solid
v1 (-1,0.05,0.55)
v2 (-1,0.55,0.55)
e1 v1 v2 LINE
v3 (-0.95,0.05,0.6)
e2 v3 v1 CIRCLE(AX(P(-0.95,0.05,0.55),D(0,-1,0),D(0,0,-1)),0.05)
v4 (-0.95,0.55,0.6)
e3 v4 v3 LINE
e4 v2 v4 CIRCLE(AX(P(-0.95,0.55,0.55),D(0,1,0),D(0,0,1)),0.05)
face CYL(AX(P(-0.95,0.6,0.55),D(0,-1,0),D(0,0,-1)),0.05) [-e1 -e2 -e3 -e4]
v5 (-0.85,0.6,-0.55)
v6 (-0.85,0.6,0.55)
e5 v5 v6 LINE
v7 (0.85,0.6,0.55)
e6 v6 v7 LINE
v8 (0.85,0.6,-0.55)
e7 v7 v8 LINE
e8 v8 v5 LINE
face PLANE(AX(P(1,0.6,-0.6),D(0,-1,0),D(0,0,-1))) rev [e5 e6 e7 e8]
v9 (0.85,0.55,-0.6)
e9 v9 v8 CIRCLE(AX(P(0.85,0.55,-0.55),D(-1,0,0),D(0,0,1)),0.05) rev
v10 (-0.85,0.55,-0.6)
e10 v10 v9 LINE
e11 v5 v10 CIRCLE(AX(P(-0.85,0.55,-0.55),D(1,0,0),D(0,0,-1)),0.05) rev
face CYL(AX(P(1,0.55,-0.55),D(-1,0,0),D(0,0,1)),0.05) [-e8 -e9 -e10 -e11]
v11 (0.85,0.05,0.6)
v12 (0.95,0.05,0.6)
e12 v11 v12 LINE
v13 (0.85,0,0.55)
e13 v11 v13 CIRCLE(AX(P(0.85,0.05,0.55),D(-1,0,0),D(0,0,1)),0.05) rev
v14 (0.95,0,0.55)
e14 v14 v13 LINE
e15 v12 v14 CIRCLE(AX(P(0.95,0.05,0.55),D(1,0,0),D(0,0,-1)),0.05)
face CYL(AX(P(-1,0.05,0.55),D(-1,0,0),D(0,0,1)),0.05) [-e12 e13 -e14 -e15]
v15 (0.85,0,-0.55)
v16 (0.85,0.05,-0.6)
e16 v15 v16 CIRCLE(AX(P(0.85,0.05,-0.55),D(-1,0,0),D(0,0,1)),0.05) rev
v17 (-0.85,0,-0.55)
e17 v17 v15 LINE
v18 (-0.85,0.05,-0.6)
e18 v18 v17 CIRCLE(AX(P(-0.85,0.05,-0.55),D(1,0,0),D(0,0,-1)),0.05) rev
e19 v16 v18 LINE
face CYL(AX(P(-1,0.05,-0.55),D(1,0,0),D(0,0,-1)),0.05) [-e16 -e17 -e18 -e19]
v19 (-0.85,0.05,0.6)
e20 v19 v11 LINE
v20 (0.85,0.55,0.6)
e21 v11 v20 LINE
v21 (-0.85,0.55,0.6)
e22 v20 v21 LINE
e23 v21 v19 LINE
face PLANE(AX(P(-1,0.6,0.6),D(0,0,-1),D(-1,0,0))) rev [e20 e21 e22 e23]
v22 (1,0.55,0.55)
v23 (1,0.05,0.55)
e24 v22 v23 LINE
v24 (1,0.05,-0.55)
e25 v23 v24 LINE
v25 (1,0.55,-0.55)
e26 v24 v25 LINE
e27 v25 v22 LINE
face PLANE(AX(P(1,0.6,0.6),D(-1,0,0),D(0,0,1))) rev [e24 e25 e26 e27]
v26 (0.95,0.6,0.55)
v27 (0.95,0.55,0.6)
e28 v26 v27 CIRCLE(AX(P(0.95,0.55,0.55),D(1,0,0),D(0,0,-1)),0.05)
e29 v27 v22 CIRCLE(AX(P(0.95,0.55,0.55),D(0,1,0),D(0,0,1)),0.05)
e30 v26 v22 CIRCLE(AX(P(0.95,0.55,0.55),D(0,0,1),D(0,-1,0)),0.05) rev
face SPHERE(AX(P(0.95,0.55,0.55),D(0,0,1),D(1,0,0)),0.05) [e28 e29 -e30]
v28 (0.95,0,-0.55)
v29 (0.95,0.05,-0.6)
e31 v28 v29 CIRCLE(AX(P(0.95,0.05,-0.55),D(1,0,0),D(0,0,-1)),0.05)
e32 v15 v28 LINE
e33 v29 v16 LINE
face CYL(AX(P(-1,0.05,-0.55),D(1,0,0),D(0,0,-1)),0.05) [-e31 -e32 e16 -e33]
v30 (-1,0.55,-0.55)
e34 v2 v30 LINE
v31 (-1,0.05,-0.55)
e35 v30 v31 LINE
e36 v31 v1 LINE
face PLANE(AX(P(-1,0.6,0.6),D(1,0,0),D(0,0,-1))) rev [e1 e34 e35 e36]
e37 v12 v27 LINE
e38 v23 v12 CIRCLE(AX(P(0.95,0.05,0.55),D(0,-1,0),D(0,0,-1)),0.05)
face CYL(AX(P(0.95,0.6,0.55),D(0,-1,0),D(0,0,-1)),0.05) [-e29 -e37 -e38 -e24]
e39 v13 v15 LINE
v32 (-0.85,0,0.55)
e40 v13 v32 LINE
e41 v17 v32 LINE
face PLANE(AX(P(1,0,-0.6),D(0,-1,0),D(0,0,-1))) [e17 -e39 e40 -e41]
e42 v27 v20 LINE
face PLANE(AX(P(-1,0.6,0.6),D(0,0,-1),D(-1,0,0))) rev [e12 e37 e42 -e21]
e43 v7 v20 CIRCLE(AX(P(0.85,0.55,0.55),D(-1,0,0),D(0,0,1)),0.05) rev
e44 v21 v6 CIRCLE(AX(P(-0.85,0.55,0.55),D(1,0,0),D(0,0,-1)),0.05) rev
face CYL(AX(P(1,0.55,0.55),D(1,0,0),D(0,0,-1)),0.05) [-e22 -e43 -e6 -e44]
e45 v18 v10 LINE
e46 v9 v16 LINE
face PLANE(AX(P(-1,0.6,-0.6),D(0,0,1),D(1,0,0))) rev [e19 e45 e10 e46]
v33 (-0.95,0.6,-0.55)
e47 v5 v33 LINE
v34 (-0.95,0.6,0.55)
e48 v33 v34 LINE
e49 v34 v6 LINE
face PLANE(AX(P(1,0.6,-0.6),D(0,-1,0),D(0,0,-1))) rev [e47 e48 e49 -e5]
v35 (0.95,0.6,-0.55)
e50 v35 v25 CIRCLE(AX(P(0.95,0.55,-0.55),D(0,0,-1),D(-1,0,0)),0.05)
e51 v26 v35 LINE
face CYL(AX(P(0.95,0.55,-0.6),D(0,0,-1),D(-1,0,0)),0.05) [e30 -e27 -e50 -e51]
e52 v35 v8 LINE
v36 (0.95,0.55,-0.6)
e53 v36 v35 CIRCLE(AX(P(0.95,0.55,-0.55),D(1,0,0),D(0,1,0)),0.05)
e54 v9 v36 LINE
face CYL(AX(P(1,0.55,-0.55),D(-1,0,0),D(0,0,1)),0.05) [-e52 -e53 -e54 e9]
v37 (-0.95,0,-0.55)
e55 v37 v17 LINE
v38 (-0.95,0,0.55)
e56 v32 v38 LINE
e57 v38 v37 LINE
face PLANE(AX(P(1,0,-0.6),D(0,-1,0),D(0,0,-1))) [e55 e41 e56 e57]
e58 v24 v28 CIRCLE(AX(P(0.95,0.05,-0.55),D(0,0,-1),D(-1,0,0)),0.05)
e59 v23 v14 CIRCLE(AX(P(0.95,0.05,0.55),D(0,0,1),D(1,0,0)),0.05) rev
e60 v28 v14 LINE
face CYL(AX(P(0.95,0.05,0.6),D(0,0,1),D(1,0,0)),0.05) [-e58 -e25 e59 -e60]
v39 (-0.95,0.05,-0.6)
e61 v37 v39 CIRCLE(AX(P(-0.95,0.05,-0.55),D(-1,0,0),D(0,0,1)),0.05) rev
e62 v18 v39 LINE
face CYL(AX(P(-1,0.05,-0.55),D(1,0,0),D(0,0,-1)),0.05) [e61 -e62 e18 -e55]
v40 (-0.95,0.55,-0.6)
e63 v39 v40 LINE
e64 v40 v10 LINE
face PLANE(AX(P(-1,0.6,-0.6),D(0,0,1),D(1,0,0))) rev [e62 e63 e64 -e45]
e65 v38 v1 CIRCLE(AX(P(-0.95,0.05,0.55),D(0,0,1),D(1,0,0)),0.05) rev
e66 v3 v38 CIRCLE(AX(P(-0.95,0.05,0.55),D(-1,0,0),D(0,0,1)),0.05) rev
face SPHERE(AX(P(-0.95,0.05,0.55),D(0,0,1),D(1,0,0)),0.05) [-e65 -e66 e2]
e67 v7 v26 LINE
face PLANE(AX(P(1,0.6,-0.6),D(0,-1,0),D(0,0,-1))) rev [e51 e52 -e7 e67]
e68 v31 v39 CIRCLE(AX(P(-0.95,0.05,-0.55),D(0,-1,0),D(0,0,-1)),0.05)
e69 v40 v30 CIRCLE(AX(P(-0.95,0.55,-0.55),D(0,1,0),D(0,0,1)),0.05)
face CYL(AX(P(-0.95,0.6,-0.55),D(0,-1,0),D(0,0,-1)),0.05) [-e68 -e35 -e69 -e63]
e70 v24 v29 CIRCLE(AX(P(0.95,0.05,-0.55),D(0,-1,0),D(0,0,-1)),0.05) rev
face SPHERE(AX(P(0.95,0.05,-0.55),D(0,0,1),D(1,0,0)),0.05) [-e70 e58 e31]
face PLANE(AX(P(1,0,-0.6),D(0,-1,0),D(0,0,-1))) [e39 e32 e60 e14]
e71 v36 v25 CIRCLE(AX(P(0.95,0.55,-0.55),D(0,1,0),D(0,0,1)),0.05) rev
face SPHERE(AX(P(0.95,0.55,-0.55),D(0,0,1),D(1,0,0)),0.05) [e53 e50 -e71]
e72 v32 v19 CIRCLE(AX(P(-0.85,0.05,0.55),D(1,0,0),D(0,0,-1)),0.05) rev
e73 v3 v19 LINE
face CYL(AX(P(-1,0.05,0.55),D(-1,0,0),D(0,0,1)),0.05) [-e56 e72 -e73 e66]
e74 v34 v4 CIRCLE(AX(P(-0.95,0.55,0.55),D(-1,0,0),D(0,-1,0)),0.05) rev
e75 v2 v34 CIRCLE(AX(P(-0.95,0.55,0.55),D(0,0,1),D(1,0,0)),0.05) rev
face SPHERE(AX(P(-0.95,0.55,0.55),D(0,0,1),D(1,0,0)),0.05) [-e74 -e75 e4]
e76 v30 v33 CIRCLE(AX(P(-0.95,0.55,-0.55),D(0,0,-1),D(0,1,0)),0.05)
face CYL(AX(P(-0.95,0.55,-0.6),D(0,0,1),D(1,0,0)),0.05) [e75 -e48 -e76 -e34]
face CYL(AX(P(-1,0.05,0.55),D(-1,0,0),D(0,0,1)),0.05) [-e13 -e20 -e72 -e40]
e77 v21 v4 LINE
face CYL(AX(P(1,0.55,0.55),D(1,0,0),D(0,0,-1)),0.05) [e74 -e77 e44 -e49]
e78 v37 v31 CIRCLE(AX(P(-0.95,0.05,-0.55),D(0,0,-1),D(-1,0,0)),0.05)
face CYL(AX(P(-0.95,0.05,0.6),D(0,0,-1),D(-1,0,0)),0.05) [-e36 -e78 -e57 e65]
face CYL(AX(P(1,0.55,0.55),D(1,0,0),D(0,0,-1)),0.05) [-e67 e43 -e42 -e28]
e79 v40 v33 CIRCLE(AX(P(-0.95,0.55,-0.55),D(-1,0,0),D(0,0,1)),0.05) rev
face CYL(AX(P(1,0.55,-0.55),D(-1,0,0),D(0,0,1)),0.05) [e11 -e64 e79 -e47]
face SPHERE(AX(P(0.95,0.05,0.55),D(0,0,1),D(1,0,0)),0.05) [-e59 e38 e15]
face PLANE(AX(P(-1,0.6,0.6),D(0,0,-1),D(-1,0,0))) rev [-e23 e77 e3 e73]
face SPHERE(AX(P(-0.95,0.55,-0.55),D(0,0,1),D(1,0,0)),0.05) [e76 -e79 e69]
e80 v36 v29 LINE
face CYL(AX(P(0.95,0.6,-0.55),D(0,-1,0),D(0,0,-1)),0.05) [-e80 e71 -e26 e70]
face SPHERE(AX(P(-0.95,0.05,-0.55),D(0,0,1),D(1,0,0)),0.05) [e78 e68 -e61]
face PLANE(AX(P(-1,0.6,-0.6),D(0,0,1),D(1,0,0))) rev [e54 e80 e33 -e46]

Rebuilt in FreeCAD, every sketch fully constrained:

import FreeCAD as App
import Part
import Sketcher

V = App.Vector

doc = App.newDocument("Part")
params = doc.addObject("Spreadsheet::Sheet", "Params")
for row, (alias, value) in enumerate([
    ("sketch1_width", "2 mm"),
    ("sketch1_height", "1.2 mm"),
    ("pad1_length", "0.6 mm"),
    ("fillet_radius", "0.05 mm"),
], start=1):
    params.set(f"A{row}", alias)
    params.set(f"B{row}", "=" + value)
    params.setAlias(f"B{row}", alias)

body = doc.addObject("PartDesign::Body", "Body")

sketch1 = body.newObject("Sketcher::SketchObject", "Sketch")
sketch1.AttachmentSupport = (doc.getObject("XZ_Plane"), [""])
sketch1.MapMode = "FlatFace"
sketch1.addGeometry(Part.LineSegment(V(-1, -0.6, 0), V(-1, 0.6, 0)), False)
sketch1.addGeometry(Part.LineSegment(V(-1, 0.6, 0), V(1, 0.6, 0)), False)
sketch1.addGeometry(Part.LineSegment(V(1, 0.6, 0), V(1, -0.6, 0)), False)
sketch1.addGeometry(Part.LineSegment(V(1, -0.6, 0), V(-1, -0.6, 0)), False)
sketch1.addConstraint(Sketcher.Constraint("Coincident", 0, 2, 1, 1))
sketch1.addConstraint(Sketcher.Constraint("Coincident", 1, 2, 2, 1))
sketch1.addConstraint(Sketcher.Constraint("Coincident", 2, 2, 3, 1))
sketch1.addConstraint(Sketcher.Constraint("Coincident", 3, 2, 0, 1))
sketch1.addConstraint(Sketcher.Constraint("Vertical", 0))
sketch1.addConstraint(Sketcher.Constraint("Horizontal", 1))
sketch1.addConstraint(Sketcher.Constraint("Vertical", 2))
sketch1.addConstraint(Sketcher.Constraint("Horizontal", 3))
sketch1.addConstraint(Sketcher.Constraint("Symmetric", 0, 2, 2, 2, -1, 1))
sketch1.addConstraint(Sketcher.Constraint("DistanceX", 1, 1, 1, 2, 2.0))
sketch1.addConstraint(Sketcher.Constraint("DistanceY", 0, 1, 0, 2, 1.2))
sketch1.setExpression("Constraints[9]", "Params.sketch1_width")
sketch1.setExpression("Constraints[10]", "Params.sketch1_height")
pad1 = body.newObject("PartDesign::Pad", "Pad")
pad1.Profile = sketch1
pad1.setExpression("Length", "Params.pad1_length")
pad1.Reversed = True
doc.recompute()

fillet = body.newObject("PartDesign::Fillet", "Fillet")
fillet.Base = (pad1, ["Edge1"])
fillet.UseAllEdges = True
fillet.setExpression("Radius", "Params.fillet_radius")

doc.recompute()
